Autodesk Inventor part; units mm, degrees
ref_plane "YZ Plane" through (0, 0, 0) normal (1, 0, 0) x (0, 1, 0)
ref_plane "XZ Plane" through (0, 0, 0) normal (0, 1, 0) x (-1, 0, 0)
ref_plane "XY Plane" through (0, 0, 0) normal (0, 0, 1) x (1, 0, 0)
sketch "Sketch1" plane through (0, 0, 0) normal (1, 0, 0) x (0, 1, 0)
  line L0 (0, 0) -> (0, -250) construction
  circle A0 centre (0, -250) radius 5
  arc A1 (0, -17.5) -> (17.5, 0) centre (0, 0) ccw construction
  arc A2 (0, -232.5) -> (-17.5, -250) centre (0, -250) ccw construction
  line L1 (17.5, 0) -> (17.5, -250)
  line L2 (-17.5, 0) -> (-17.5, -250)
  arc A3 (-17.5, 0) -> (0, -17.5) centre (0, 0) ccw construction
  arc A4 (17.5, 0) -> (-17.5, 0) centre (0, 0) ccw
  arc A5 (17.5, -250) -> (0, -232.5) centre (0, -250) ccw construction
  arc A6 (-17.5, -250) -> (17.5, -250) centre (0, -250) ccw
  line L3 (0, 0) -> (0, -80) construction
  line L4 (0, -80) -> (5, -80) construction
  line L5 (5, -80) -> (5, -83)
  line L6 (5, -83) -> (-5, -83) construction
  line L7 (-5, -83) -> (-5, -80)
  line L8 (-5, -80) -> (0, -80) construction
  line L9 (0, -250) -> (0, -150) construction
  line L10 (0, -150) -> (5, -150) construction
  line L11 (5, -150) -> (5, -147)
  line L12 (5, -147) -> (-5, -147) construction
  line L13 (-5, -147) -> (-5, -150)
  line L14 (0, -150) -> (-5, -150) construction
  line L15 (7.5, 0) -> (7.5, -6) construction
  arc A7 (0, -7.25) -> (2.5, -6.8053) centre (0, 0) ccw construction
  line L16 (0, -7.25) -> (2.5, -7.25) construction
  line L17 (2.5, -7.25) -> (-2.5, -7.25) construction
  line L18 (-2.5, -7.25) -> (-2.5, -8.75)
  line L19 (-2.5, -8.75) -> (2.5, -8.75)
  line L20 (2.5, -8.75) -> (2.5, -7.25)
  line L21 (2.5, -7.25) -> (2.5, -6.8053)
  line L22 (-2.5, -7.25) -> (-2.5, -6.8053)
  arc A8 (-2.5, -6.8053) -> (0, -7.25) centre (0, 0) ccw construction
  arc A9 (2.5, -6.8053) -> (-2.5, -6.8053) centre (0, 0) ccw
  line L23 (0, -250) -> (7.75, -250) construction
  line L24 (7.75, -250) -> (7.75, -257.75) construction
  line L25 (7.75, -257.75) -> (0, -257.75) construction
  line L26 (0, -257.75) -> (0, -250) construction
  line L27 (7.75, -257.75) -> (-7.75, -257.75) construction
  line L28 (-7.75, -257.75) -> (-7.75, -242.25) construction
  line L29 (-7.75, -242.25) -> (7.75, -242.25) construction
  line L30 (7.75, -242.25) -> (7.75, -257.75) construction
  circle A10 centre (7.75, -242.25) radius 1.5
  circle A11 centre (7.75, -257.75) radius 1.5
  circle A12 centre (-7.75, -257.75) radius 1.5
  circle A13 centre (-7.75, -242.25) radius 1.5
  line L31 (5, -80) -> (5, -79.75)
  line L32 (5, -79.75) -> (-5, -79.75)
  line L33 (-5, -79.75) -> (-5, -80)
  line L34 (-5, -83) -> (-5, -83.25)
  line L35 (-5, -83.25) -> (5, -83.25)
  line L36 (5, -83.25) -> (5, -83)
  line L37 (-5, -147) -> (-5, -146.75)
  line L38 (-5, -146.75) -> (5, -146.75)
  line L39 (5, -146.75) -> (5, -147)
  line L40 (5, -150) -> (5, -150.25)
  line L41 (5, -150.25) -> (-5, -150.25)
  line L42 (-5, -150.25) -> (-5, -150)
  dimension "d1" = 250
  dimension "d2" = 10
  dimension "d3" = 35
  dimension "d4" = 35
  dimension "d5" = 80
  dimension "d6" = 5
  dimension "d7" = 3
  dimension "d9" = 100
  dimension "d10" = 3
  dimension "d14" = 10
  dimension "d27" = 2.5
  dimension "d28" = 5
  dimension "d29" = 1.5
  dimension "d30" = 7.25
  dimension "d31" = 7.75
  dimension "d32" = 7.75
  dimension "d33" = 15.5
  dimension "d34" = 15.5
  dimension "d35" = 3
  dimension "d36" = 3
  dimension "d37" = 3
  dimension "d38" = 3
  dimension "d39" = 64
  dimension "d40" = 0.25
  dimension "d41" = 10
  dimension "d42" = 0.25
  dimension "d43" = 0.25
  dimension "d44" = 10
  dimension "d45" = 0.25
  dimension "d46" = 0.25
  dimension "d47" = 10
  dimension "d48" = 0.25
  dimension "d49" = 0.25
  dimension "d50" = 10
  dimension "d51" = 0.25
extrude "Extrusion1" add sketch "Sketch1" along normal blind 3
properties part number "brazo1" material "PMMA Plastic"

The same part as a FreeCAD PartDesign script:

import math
import FreeCAD as App
import Part
import Sketcher
Q = App.Units.Quantity

doc = App.newDocument("Part")
body = doc.addObject("PartDesign::Body", "Body")

# Sketch on YZ plane
sketch1 = body.newObject("Sketcher::SketchObject", "Sketch")
sketch1.AttachmentSupport = (doc.getObject("YZ_Plane"), [""])
sketch1.MapMode = "FlatFace"
sketch1.addGeometry([
    Part.LineSegment(App.Vector(17.5, -250, 0), App.Vector(17.5, 0, 0)),  # 0
    Part.ArcOfCircle(Part.Circle(App.Vector(0, 0, 0), App.Vector(0, 0, 1), 17.5), math.radians(0), math.radians(180)),  # 1
    Part.LineSegment(App.Vector(-17.5, 0, 0), App.Vector(-17.5, -250, 0)),  # 2
    Part.ArcOfCircle(Part.Circle(App.Vector(0, -250, 0), App.Vector(0, 0, 1), 17.5), math.radians(180), math.radians(360)),  # 3
    Part.Circle(App.Vector(-7.8, -257.8, 0), App.Vector(0, 0, 1), 1.5),  # 4
    Part.Circle(App.Vector(-7.8, -242.2, 0), App.Vector(0, 0, 1), 1.5),  # 5
    Part.Circle(App.Vector(0, -250, 0), App.Vector(0, 0, 1), 5),  # 6
    Part.Circle(App.Vector(7.8, -257.8, 0), App.Vector(0, 0, 1), 1.5),  # 7
    Part.Circle(App.Vector(7.8, -242.2, 0), App.Vector(0, 0, 1), 1.5),  # 8
    Part.LineSegment(App.Vector(5, -146.8, 0), App.Vector(5, -150.2, 0)),  # 9
    Part.LineSegment(App.Vector(5, -150.2, 0), App.Vector(-5, -150.2, 0)),  # 10
    Part.LineSegment(App.Vector(-5, -150.2, 0), App.Vector(-5, -146.8, 0)),  # 11
    Part.LineSegment(App.Vector(-5, -146.8, 0), App.Vector(5, -146.8, 0)),  # 12
    Part.LineSegment(App.Vector(5, -79.8, 0), App.Vector(5, -83.2, 0)),  # 13
    Part.LineSegment(App.Vector(5, -83.2, 0), App.Vector(-5, -83.2, 0)),  # 14
    Part.LineSegment(App.Vector(-5, -83.2, 0), App.Vector(-5, -79.8, 0)),  # 15
    Part.LineSegment(App.Vector(-5, -79.8, 0), App.Vector(5, -79.8, 0)),  # 16
    Part.LineSegment(App.Vector(-2.5, -8.8, 0), App.Vector(-2.5, -6.8, 0)),  # 17
    Part.ArcOfCircle(Part.Circle(App.Vector(0, 0, 0), App.Vector(0, 0, 1), 7.2), math.radians(-70), math.radians(250)),  # 18
    Part.LineSegment(App.Vector(2.5, -6.8, 0), App.Vector(2.5, -8.8, 0)),  # 19
    Part.LineSegment(App.Vector(2.5, -8.8, 0), App.Vector(-2.5, -8.8, 0)),  # 20
], False)
sketch1.addConstraint([
    Sketcher.Constraint("Tangent", 0, 2, 1, 1),
    Sketcher.Constraint("Tangent", 1, 2, 2, 1),
    Sketcher.Constraint("Tangent", 2, 2, 3, 1),
    Sketcher.Constraint("Tangent", 3, 2, 0, 1),
    Sketcher.Constraint("Coincident", 9, 2, 10, 1),
    Sketcher.Constraint("Coincident", 10, 2, 11, 1),
    Sketcher.Constraint("Coincident", 11, 2, 12, 1),
    Sketcher.Constraint("Coincident", 12, 2, 9, 1),
    Sketcher.Constraint("Coincident", 13, 2, 14, 1),
    Sketcher.Constraint("Coincident", 14, 2, 15, 1),
    Sketcher.Constraint("Coincident", 15, 2, 16, 1),
    Sketcher.Constraint("Coincident", 16, 2, 13, 1),
    Sketcher.Constraint("Coincident", 17, 2, 18, 2),
    Sketcher.Constraint("Coincident", 18, 1, 19, 1),
    Sketcher.Constraint("Coincident", 19, 2, 20, 1),
    Sketcher.Constraint("Coincident", 20, 2, 17, 1),
    Sketcher.Constraint("Vertical", 0),
    Sketcher.Constraint("Vertical", 2),
    Sketcher.Constraint("Vertical", 9),
    Sketcher.Constraint("Horizontal", 10),
    Sketcher.Constraint("Vertical", 11),
    Sketcher.Constraint("Horizontal", 12),
    Sketcher.Constraint("Vertical", 13),
    Sketcher.Constraint("Horizontal", 14),
    Sketcher.Constraint("Vertical", 15),
    Sketcher.Constraint("Horizontal", 16),
    Sketcher.Constraint("Vertical", 17),
    Sketcher.Constraint("Vertical", 19),
    Sketcher.Constraint("Horizontal", 20),
    Sketcher.Constraint("Coincident", 1, 3, -1, 1),
    Sketcher.Constraint("Coincident", 18, 3, -1, 1),
    Sketcher.Constraint("Coincident", 6, 3, 3, 3),
    Sketcher.Constraint("Equal", 4, 5),
    Sketcher.Constraint("Equal", 5, 7),
    Sketcher.Constraint("Equal", 7, 8),
    Sketcher.Constraint("Symmetric", 4, 3, 7, 3, -2),
    Sketcher.Constraint("Symmetric", 5, 3, 8, 3, -2),
    Sketcher.Constraint("Horizontal", 17, 2, 18, 1),
    Sketcher.Constraint("Vertical", 4, 3, 5, 3),
    Sketcher.Constraint("Vertical", 12, 2, 13, 2),
    Sketcher.Constraint("Vertical", 11, 2, 14, 2),
    Sketcher.Constraint("Equal", 11, 13),
    Sketcher.Constraint("Diameter", 4, Q("3 mm")),
    Sketcher.Constraint("Diameter", 6, Q("10 mm")),
    Sketcher.Constraint("Radius", 1, Q("17.5 mm")),
    Sketcher.Constraint("DistanceX", 10, 2, 10, 1, Q("10 mm")),
    Sketcher.Constraint("DistanceX", 20, 2, 20, 1, Q("5 mm")),
    Sketcher.Constraint("DistanceY", 0, 1, 0, 2, Q("250 mm")),
    Sketcher.Constraint("Radius", 18, Q("7.25 mm")),
    Sketcher.Constraint("DistanceX", -1, 1, 9, 2, Q("5 mm")),
    Sketcher.Constraint("DistanceY", 4, 3, 5, 3, Q("15.5 mm")),
    Sketcher.Constraint("DistanceX", 4, 3, 7, 3, Q("15.5 mm")),
    Sketcher.Constraint("DistanceY", 4, 3, 3, 3, Q("7.75 mm")),
    Sketcher.Constraint("DistanceY", 9, 2, 9, 1, Q("3.5 mm")),
    Sketcher.Constraint("DistanceY", 8, 3, 9, 2, Q("92 mm")),
    Sketcher.Constraint("DistanceY", 9, 2, 13, 2, Q("67 mm")),
    Sketcher.Constraint("DistanceY", 19, 2, -1, 1, Q("8.75 mm")),
])
pad1 = body.newObject("PartDesign::Pad", "Pad")
pad1.Profile = sketch1
pad1.Length = 3

doc.recompute()
